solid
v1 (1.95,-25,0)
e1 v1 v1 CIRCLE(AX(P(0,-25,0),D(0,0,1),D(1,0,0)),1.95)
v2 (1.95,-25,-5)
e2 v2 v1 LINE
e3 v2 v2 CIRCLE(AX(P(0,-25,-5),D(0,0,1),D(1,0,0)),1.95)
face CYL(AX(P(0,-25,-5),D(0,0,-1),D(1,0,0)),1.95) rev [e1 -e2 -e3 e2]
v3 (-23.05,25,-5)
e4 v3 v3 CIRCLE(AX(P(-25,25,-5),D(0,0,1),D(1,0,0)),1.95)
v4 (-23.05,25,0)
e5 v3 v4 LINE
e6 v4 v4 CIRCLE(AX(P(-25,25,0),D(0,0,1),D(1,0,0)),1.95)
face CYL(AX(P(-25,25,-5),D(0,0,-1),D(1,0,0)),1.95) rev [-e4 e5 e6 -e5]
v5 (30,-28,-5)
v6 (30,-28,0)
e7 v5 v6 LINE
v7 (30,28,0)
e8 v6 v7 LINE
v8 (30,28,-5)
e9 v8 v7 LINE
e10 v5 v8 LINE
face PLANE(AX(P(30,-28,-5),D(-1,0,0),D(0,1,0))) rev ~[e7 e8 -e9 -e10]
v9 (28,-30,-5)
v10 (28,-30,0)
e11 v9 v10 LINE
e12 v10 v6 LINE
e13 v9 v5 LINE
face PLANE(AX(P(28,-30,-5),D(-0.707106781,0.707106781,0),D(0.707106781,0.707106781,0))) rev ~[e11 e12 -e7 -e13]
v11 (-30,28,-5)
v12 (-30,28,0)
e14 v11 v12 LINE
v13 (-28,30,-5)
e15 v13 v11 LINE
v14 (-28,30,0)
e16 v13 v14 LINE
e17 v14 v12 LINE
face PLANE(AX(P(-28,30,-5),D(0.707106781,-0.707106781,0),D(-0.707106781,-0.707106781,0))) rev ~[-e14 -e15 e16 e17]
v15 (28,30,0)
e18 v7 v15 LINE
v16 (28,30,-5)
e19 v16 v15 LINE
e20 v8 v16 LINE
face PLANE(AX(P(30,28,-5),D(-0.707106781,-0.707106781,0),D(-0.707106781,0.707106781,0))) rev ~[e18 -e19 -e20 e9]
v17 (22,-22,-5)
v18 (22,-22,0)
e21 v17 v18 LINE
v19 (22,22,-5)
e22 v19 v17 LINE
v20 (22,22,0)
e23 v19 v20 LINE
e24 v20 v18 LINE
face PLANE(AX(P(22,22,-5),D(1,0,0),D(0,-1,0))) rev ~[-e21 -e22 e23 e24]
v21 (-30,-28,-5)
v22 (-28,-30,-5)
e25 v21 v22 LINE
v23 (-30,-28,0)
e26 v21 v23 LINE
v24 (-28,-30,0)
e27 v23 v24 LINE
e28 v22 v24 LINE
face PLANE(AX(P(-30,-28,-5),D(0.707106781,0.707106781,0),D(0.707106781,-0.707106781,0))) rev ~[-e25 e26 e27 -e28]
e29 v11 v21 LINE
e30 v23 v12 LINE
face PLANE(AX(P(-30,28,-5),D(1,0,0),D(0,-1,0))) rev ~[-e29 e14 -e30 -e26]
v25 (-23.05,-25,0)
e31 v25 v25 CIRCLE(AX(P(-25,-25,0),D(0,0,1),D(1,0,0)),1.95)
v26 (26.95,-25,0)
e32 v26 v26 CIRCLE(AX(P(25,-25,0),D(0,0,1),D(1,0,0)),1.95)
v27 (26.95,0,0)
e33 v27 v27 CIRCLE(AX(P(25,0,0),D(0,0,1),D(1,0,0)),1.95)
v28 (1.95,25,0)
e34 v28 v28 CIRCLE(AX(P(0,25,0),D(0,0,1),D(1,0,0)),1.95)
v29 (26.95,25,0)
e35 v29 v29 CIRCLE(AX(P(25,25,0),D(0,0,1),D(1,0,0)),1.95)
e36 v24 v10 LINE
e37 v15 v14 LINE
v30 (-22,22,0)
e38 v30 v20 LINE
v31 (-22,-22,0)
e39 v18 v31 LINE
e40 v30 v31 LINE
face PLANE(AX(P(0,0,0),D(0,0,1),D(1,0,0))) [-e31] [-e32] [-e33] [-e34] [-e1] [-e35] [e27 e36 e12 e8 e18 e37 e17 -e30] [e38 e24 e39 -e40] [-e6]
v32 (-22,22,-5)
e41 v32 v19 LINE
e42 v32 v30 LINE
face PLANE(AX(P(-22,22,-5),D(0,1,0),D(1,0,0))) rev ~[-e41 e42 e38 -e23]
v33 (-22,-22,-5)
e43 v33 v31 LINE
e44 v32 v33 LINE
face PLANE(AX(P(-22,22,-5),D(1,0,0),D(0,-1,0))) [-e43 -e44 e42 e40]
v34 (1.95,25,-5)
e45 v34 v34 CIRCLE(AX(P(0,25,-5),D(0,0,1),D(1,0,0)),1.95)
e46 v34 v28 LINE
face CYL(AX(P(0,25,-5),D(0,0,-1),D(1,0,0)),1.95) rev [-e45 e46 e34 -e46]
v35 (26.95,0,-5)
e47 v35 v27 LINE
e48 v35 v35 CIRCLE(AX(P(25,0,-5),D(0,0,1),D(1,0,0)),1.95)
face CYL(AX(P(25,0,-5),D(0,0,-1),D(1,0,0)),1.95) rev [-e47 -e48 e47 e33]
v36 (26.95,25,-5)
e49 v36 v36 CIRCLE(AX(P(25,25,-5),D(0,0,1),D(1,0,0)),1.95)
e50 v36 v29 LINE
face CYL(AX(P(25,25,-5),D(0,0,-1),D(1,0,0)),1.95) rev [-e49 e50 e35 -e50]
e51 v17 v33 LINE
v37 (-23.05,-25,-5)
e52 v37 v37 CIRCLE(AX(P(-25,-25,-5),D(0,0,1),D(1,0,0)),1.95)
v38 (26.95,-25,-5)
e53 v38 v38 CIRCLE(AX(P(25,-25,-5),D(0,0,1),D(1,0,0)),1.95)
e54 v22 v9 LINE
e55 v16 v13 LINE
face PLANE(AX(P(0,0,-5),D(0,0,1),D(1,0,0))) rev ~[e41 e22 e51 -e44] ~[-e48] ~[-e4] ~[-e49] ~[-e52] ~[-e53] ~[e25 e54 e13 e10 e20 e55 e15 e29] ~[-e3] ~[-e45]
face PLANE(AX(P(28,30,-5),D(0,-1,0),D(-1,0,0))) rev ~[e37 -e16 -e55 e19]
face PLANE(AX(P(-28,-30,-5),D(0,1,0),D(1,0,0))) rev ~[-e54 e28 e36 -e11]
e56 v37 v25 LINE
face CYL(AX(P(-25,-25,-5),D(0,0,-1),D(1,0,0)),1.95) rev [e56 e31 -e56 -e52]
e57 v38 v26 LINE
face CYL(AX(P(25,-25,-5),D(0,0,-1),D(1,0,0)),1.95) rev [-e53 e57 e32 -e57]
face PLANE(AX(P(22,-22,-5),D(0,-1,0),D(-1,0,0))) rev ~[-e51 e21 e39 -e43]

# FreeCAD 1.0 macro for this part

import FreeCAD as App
import Part
import Sketcher
from FreeCAD import Vector

doc = App.newDocument("Part")
body = doc.addObject("PartDesign::Body", "Body")

# Sketch on XY plane
sketch1 = body.newObject("Sketcher::SketchObject", "Sketch")
sketch1.AttachmentSupport = (doc.getObject("XY_Plane"), [""])
sketch1.MapMode = "FlatFace"
sketch1.AttachmentOffset = App.Placement(Vector(0, 0, -5), App.Rotation())
sketch1.addGeometry([
    Part.LineSegment(Vector(-30, 28, 0), Vector(-30, -28, 0)),  # 0
    Part.LineSegment(Vector(-30, -28, 0), Vector(-28, -30, 0)),  # 1
    Part.LineSegment(Vector(-28, -30, 0), Vector(28, -30, 0)),  # 2
    Part.LineSegment(Vector(28, -30, 0), Vector(30, -28, 0)),  # 3
    Part.LineSegment(Vector(30, -28, 0), Vector(30, 28, 0)),  # 4
    Part.LineSegment(Vector(30, 28, 0), Vector(28, 30, 0)),  # 5
    Part.LineSegment(Vector(28, 30, 0), Vector(-28, 30, 0)),  # 6
    Part.LineSegment(Vector(-28, 30, 0), Vector(-30, 28, 0)),  # 7
    Part.LineSegment(Vector(22, -22, 0), Vector(-22, -22, 0)),  # 8
    Part.LineSegment(Vector(-22, -22, 0), Vector(-22, 22, 0)),  # 9
    Part.LineSegment(Vector(-22, 22, 0), Vector(22, 22, 0)),  # 10
    Part.LineSegment(Vector(22, 22, 0), Vector(22, -22, 0)),  # 11
    Part.Circle(Vector(-25, -25, 0), Vector(0, 0, 1), 1.9),  # 12
    Part.Circle(Vector(0, -25, 0), Vector(0, 0, 1), 1.9),  # 13
    Part.Circle(Vector(25, -25, 0), Vector(0, 0, 1), 1.9),  # 14
    Part.Circle(Vector(-25, 25, 0), Vector(0, 0, 1), 1.9),  # 15
    Part.Circle(Vector(25, 0, 0), Vector(0, 0, 1), 1.9),  # 16
    Part.Circle(Vector(0, 25, 0), Vector(0, 0, 1), 1.9),  # 17
    Part.Circle(Vector(25, 25, 0), Vector(0, 0, 1), 1.9),  # 18
], False)
sketch1.addConstraint([
    Sketcher.Constraint("Coincident", 0, 2, 1, 1),
    Sketcher.Constraint("Coincident", 1, 2, 2, 1),
    Sketcher.Constraint("Coincident", 2, 2, 3, 1),
    Sketcher.Constraint("Coincident", 3, 2, 4, 1),
    Sketcher.Constraint("Coincident", 4, 2, 5, 1),
    Sketcher.Constraint("Coincident", 5, 2, 6, 1),
    Sketcher.Constraint("Coincident", 6, 2, 7, 1),
    Sketcher.Constraint("Coincident", 7, 2, 0, 1),
    Sketcher.Constraint("Coincident", 8, 2, 9, 1),
    Sketcher.Constraint("Coincident", 9, 2, 10, 1),
    Sketcher.Constraint("Coincident", 10, 2, 11, 1),
    Sketcher.Constraint("Coincident", 11, 2, 8, 1),
    Sketcher.Constraint("Vertical", 0),
    Sketcher.Constraint("Horizontal", 2),
    Sketcher.Constraint("Vertical", 4),
    Sketcher.Constraint("Horizontal", 6),
    Sketcher.Constraint("Horizontal", 8),
    Sketcher.Constraint("Vertical", 9),
    Sketcher.Constraint("Horizontal", 10),
    Sketcher.Constraint("Vertical", 11),
    Sketcher.Constraint("Equal", 12, 13),
    Sketcher.Constraint("Equal", 13, 14),
    Sketcher.Constraint("Equal", 14, 15),
    Sketcher.Constraint("Equal", 15, 16),
    Sketcher.Constraint("Equal", 16, 17),
    Sketcher.Constraint("Equal", 17, 18),
    Sketcher.Constraint("Symmetric", 14, 3, 15, 3, -1, 1),
    Sketcher.Constraint("Symmetric", 13, 3, 17, 3, -1, 1),
    Sketcher.Constraint("Symmetric", 12, 3, 18, 3, -1, 1),
    Sketcher.Constraint("Symmetric", 0, 2, 4, 2, -1, 1),
    Sketcher.Constraint("Symmetric", 1, 2, 5, 2, -1, 1),
    Sketcher.Constraint("Symmetric", 8, 2, 10, 2, -1, 1),
    Sketcher.Constraint("Symmetric", 12, 3, 14, 3, -2),
    Sketcher.Constraint("PointOnObject", 13, 3, -2),
    Sketcher.Constraint("PointOnObject", 16, 3, -1),
    Sketcher.Constraint("Perpendicular", 1, 3),
    Sketcher.Constraint("Perpendicular", 5, 7),
    Sketcher.Constraint("Horizontal", 12, 3, 13, 3),
    Sketcher.Constraint("Horizontal", 0, 2, 3, 2),
    Sketcher.Constraint("Horizontal", 4, 2, 7, 2),
    Sketcher.Constraint("Vertical", 14, 3, 16, 3),
    Sketcher.Constraint("Vertical", 2, 2, 5, 2),
    Sketcher.Constraint("Equal", 6, 0),
    Sketcher.Constraint("Equal", 10, 9),
    Sketcher.Constraint("DistanceX", 8, 2, 8, 1, 44.0),
    Sketcher.Constraint("Diameter", 12, 3.9),
    Sketcher.Constraint("DistanceX", 2, 1, 2, 2, 56.0),
    Sketcher.Constraint("DistanceX", 12, 3, -1, 1, 25.0),
    Sketcher.Constraint("DistanceY", 12, 3, -1, 1, 25.0),
    Sketcher.Constraint("DistanceX", 0, 2, -1, 1, 30.0),
])
pad1 = body.newObject("PartDesign::Pad", "Pad")
pad1.Profile = sketch1
pad1.Length = 5

doc.recompute()
